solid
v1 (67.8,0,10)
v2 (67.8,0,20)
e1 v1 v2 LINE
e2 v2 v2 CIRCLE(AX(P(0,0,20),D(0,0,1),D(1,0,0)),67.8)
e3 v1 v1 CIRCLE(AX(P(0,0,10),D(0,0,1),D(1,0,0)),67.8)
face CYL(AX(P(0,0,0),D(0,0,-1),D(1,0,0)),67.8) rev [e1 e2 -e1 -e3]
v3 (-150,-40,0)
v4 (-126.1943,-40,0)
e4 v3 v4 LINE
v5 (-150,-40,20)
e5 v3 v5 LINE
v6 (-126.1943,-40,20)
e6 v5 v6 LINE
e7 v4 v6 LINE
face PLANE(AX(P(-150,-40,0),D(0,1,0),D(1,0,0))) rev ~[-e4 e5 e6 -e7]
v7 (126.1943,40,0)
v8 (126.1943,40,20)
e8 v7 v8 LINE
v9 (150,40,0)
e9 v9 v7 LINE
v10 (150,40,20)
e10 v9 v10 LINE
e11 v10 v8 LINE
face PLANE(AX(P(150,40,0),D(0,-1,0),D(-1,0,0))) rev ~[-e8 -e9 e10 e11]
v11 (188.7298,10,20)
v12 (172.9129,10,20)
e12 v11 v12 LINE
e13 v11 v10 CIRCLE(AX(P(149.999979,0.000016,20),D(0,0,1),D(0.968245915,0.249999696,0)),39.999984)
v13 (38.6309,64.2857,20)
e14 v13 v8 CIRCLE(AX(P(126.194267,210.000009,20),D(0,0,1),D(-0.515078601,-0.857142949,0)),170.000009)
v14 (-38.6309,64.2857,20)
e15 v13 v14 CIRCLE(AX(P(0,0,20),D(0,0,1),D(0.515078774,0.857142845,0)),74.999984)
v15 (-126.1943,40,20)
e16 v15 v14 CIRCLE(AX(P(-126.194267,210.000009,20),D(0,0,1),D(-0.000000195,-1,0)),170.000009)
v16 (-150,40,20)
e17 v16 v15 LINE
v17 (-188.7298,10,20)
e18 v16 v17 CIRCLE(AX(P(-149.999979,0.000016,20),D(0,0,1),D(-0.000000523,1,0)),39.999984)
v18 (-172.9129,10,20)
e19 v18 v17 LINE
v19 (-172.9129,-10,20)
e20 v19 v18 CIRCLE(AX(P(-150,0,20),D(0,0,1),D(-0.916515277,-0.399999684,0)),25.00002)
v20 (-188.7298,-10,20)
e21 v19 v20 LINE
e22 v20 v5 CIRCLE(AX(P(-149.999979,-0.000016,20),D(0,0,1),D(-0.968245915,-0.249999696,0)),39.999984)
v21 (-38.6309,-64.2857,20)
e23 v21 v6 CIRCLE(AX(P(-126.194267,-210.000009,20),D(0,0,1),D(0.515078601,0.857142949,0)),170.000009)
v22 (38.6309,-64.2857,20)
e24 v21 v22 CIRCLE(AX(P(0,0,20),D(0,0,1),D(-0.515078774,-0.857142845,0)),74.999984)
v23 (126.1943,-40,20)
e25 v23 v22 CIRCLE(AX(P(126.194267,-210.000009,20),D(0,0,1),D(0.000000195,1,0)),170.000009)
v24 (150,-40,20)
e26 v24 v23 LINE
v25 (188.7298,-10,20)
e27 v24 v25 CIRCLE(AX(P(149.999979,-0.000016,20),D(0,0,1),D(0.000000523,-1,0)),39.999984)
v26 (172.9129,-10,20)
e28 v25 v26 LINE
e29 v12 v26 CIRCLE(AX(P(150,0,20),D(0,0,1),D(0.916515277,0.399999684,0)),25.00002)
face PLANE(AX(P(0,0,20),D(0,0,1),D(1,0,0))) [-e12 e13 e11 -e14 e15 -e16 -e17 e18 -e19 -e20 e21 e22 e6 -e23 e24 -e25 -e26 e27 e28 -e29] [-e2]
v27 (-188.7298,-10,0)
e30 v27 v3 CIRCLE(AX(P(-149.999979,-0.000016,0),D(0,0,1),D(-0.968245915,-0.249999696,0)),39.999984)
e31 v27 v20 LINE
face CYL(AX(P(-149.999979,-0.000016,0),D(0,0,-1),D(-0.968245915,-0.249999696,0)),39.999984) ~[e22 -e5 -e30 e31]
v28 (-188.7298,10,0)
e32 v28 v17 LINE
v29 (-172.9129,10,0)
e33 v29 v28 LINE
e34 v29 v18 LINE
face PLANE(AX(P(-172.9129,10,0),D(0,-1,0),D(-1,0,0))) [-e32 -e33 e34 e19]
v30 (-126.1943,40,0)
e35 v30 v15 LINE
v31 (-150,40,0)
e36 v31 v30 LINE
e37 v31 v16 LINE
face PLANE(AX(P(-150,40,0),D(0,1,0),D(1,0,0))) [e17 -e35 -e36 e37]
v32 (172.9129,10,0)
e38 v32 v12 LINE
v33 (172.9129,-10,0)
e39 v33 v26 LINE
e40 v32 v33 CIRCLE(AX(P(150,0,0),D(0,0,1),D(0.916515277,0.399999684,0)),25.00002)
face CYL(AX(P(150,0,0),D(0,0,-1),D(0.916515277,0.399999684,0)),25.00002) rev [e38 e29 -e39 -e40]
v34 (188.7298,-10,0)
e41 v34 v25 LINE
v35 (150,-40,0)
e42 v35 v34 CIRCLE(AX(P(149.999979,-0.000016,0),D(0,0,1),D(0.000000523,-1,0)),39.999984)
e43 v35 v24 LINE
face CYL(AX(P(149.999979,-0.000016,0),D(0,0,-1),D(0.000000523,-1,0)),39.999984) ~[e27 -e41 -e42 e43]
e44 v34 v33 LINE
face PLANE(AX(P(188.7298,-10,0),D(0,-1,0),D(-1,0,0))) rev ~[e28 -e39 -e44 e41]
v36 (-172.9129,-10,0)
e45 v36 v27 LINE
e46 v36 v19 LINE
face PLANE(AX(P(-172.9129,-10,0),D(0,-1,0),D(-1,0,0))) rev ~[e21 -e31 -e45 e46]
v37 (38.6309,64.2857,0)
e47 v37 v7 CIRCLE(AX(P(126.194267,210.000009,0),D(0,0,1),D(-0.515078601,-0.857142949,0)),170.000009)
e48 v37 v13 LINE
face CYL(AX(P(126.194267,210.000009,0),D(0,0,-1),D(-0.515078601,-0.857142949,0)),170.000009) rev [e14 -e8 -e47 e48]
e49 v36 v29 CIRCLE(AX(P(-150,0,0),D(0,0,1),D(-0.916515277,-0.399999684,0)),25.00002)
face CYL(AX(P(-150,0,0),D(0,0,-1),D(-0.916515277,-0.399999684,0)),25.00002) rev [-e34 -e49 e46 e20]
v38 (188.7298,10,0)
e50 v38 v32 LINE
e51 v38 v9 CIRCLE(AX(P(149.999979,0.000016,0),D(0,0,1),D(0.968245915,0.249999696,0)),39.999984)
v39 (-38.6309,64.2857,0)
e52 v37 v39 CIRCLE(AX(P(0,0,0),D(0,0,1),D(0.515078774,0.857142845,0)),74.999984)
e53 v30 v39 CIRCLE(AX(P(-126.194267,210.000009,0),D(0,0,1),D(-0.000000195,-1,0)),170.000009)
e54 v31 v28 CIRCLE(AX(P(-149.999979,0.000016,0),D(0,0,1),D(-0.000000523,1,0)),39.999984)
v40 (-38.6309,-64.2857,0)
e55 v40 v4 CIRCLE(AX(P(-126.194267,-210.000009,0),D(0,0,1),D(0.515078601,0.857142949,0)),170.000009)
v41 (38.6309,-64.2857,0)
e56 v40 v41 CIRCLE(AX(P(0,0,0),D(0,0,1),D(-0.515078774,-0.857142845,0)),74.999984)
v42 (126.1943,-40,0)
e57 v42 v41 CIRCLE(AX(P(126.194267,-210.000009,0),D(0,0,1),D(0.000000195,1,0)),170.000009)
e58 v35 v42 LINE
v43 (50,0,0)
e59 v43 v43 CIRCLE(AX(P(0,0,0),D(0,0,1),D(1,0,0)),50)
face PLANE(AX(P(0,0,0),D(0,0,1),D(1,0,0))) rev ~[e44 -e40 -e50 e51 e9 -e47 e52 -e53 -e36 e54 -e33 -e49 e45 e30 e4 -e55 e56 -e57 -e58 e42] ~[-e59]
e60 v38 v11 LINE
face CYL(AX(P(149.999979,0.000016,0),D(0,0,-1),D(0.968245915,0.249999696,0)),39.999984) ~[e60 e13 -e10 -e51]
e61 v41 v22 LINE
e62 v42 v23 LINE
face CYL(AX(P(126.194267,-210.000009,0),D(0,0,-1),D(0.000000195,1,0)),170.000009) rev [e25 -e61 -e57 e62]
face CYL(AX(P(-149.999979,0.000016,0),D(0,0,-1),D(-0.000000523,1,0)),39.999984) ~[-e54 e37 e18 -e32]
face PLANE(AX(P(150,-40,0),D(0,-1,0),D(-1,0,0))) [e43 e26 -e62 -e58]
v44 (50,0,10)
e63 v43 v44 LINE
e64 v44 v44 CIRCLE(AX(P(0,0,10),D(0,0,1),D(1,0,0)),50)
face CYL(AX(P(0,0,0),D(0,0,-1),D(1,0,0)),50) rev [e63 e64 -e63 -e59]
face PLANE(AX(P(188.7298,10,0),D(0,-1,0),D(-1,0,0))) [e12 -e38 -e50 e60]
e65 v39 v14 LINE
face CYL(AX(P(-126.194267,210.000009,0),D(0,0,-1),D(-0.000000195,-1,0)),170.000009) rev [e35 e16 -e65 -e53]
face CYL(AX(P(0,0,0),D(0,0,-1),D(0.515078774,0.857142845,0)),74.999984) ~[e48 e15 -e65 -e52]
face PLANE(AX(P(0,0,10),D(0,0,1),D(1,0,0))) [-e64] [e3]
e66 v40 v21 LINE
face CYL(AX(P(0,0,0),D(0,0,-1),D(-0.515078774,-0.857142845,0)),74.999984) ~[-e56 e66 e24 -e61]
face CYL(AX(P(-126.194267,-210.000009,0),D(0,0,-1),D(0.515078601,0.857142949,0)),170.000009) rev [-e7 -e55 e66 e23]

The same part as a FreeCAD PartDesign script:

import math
import FreeCAD as App
import Part
import Sketcher
from FreeCAD import Vector

doc = App.newDocument("Part")
body = doc.addObject("PartDesign::Body", "Body")

# Sketch on XY plane
sketch1 = body.newObject("Sketcher::SketchObject", "Sketch")
sketch1.AttachmentSupport = (doc.getObject("XY_Plane"), [""])
sketch1.MapMode = "FlatFace"
sketch1.addGeometry([
    Part.LineSegment(Vector(-126, 40, 0), Vector(-150, 40, 0)),  # 0
    Part.ArcOfCircle(Part.Circle(Vector(-150, 0, 0), Vector(0, 0, 1), 40), math.radians(90), math.radians(166)),  # 1
    Part.LineSegment(Vector(-189, 10, 0), Vector(-173, 10, 0)),  # 2
    Part.ArcOfCircle(Part.Circle(Vector(-150, 0, 0), Vector(0, 0, 1), 25), math.radians(-156), math.radians(156)),  # 3
    Part.LineSegment(Vector(-173, -10, 0), Vector(-189, -10, 0)),  # 4
    Part.ArcOfCircle(Part.Circle(Vector(-150, 0, 0), Vector(0, 0, 1), 40), math.radians(-166), math.radians(-90)),  # 5
    Part.LineSegment(Vector(-150, -40, 0), Vector(-126, -40, 0)),  # 6
    Part.ArcOfCircle(Part.Circle(Vector(-126, -210, 0), Vector(0, 0, 1), 170), math.radians(59), math.radians(90)),  # 7
    Part.ArcOfCircle(Part.Circle(Vector(0, 0, 0), Vector(0, 0, 1), 75), math.radians(-121), math.radians(-59)),  # 8
    Part.ArcOfCircle(Part.Circle(Vector(126, -210, 0), Vector(0, 0, 1), 170), math.radians(90), math.radians(121)),  # 9
    Part.LineSegment(Vector(126, -40, 0), Vector(150, -40, 0)),  # 10
    Part.ArcOfCircle(Part.Circle(Vector(150, 0, 0), Vector(0, 0, 1), 40), math.radians(-90), math.radians(-14)),  # 11
    Part.LineSegment(Vector(189, -10, 0), Vector(173, -10, 0)),  # 12
    Part.ArcOfCircle(Part.Circle(Vector(150, 0, 0), Vector(0, 0, 1), 25), math.radians(24), math.radians(336)),  # 13
    Part.LineSegment(Vector(173, 10, 0), Vector(189, 10, 0)),  # 14
    Part.ArcOfCircle(Part.Circle(Vector(150, 0, 0), Vector(0, 0, 1), 40), math.radians(14), math.radians(90)),  # 15
    Part.LineSegment(Vector(150, 40, 0), Vector(126, 40, 0)),  # 16
    Part.ArcOfCircle(Part.Circle(Vector(126, 210, 0), Vector(0, 0, 1), 170), math.radians(-121), math.radians(-90)),  # 17
    Part.ArcOfCircle(Part.Circle(Vector(0, 0, 0), Vector(0, 0, 1), 75), math.radians(59), math.radians(121)),  # 18
    Part.ArcOfCircle(Part.Circle(Vector(-126, 210, 0), Vector(0, 0, 1), 170), math.radians(-90), math.radians(-59)),  # 19
    Part.Circle(Vector(0, 0, 0), Vector(0, 0, 1), 68),  # 20
], False)
sketch1.addConstraint([
    Sketcher.Constraint("Tangent", 0, 2, 1, 1),
    Sketcher.Constraint("Coincident", 1, 2, 2, 1),
    Sketcher.Constraint("Coincident", 2, 2, 3, 2),
    Sketcher.Constraint("Coincident", 3, 1, 4, 1),
    Sketcher.Constraint("Coincident", 4, 2, 5, 1),
    Sketcher.Constraint("Tangent", 5, 2, 6, 1),
    Sketcher.Constraint("Tangent", 6, 2, 7, 2),
    Sketcher.Constraint("Tangent", 7, 1, 8, 1),
    Sketcher.Constraint("Tangent", 8, 2, 9, 2),
    Sketcher.Constraint("Tangent", 9, 1, 10, 1),
    Sketcher.Constraint("Tangent", 10, 2, 11, 1),
    Sketcher.Constraint("Coincident", 11, 2, 12, 1),
    Sketcher.Constraint("Coincident", 12, 2, 13, 2),
    Sketcher.Constraint("Coincident", 13, 1, 14, 1),
    Sketcher.Constraint("Coincident", 14, 2, 15, 1),
    Sketcher.Constraint("Tangent", 15, 2, 16, 1),
    Sketcher.Constraint("Tangent", 16, 2, 17, 2),
    Sketcher.Constraint("Tangent", 17, 1, 18, 1),
    Sketcher.Constraint("Tangent", 18, 2, 19, 2),
    Sketcher.Constraint("Tangent", 19, 1, 0, 1),
    Sketcher.Constraint("Horizontal", 0),
    Sketcher.Constraint("Horizontal", 2),
    Sketcher.Constraint("Horizontal", 4),
    Sketcher.Constraint("Horizontal", 6),
    Sketcher.Constraint("Horizontal", 10),
    Sketcher.Constraint("Horizontal", 12),
    Sketcher.Constraint("Horizontal", 14),
    Sketcher.Constraint("Horizontal", 16),
    Sketcher.Constraint("Coincident", 8, 3, -1, 1),
    Sketcher.Constraint("Coincident", 18, 3, -1, 1),
    Sketcher.Constraint("Coincident", 20, 3, -1, 1),
    Sketcher.Constraint("Coincident", 3, 3, 1, 3),
    Sketcher.Constraint("Coincident", 5, 3, 1, 3),
    Sketcher.Constraint("Coincident", 13, 3, 11, 3),
    Sketcher.Constraint("Coincident", 15, 3, 11, 3),
    Sketcher.Constraint("Equal", 1, 5),
    Sketcher.Constraint("Equal", 7, 9),
    Sketcher.Constraint("Equal", 5, 11),
    Sketcher.Constraint("Equal", 3, 13),
    Sketcher.Constraint("Equal", 11, 15),
    Sketcher.Constraint("Equal", 9, 17),
    Sketcher.Constraint("Equal", 8, 18),
    Sketcher.Constraint("Equal", 17, 19),
    Sketcher.Constraint("Symmetric", 1, 3, 11, 3, -1, 1),
    Sketcher.Constraint("Symmetric", 4, 2, 11, 2, -2),
    Sketcher.Constraint("Horizontal", 2, 2, 13, 1),
    Sketcher.Constraint("Vertical", 2, 2, 3, 1),
    Sketcher.Constraint("Radius", 1, 40.0),
    Sketcher.Constraint("Radius", 3, 25.0),
    Sketcher.Constraint("Radius", 7, 170.0),
    Sketcher.Constraint("Radius", 8, 75.0),
    Sketcher.Constraint("Diameter", 20, 135.6),
    Sketcher.Constraint("DistanceX", 1, 3, -1, 1, 150.0),
    Sketcher.Constraint("DistanceY", -1, 1, 1, 2, 10.0),
])
pad1 = body.newObject("PartDesign::Pad", "Pad")
pad1.Profile = sketch1
pad1.Length = 20

# Sketch on XY plane
sketch2 = body.newObject("Sketcher::SketchObject", "Sketch001")
sketch2.AttachmentSupport = (doc.getObject("XY_Plane"), [""])
sketch2.MapMode = "FlatFace"
sketch2.addGeometry([
    Part.Circle(Vector(0, 0, 0), Vector(0, 0, 1), 68),
    Part.Circle(Vector(0, 0, 0), Vector(0, 0, 1), 50),
], False)
sketch2.addConstraint([
    Sketcher.Constraint("Coincident", 0, 3, -1, 1),
    Sketcher.Constraint("Coincident", 1, 3, -1, 1),
    Sketcher.Constraint("Diameter", 1, 100.0),
    Sketcher.Constraint("Diameter", 0, 135.6),
])
pad2 = body.newObject("PartDesign::Pad", "Pad001")
pad2.Profile = sketch2
pad2.Length = 10

doc.recompute()
